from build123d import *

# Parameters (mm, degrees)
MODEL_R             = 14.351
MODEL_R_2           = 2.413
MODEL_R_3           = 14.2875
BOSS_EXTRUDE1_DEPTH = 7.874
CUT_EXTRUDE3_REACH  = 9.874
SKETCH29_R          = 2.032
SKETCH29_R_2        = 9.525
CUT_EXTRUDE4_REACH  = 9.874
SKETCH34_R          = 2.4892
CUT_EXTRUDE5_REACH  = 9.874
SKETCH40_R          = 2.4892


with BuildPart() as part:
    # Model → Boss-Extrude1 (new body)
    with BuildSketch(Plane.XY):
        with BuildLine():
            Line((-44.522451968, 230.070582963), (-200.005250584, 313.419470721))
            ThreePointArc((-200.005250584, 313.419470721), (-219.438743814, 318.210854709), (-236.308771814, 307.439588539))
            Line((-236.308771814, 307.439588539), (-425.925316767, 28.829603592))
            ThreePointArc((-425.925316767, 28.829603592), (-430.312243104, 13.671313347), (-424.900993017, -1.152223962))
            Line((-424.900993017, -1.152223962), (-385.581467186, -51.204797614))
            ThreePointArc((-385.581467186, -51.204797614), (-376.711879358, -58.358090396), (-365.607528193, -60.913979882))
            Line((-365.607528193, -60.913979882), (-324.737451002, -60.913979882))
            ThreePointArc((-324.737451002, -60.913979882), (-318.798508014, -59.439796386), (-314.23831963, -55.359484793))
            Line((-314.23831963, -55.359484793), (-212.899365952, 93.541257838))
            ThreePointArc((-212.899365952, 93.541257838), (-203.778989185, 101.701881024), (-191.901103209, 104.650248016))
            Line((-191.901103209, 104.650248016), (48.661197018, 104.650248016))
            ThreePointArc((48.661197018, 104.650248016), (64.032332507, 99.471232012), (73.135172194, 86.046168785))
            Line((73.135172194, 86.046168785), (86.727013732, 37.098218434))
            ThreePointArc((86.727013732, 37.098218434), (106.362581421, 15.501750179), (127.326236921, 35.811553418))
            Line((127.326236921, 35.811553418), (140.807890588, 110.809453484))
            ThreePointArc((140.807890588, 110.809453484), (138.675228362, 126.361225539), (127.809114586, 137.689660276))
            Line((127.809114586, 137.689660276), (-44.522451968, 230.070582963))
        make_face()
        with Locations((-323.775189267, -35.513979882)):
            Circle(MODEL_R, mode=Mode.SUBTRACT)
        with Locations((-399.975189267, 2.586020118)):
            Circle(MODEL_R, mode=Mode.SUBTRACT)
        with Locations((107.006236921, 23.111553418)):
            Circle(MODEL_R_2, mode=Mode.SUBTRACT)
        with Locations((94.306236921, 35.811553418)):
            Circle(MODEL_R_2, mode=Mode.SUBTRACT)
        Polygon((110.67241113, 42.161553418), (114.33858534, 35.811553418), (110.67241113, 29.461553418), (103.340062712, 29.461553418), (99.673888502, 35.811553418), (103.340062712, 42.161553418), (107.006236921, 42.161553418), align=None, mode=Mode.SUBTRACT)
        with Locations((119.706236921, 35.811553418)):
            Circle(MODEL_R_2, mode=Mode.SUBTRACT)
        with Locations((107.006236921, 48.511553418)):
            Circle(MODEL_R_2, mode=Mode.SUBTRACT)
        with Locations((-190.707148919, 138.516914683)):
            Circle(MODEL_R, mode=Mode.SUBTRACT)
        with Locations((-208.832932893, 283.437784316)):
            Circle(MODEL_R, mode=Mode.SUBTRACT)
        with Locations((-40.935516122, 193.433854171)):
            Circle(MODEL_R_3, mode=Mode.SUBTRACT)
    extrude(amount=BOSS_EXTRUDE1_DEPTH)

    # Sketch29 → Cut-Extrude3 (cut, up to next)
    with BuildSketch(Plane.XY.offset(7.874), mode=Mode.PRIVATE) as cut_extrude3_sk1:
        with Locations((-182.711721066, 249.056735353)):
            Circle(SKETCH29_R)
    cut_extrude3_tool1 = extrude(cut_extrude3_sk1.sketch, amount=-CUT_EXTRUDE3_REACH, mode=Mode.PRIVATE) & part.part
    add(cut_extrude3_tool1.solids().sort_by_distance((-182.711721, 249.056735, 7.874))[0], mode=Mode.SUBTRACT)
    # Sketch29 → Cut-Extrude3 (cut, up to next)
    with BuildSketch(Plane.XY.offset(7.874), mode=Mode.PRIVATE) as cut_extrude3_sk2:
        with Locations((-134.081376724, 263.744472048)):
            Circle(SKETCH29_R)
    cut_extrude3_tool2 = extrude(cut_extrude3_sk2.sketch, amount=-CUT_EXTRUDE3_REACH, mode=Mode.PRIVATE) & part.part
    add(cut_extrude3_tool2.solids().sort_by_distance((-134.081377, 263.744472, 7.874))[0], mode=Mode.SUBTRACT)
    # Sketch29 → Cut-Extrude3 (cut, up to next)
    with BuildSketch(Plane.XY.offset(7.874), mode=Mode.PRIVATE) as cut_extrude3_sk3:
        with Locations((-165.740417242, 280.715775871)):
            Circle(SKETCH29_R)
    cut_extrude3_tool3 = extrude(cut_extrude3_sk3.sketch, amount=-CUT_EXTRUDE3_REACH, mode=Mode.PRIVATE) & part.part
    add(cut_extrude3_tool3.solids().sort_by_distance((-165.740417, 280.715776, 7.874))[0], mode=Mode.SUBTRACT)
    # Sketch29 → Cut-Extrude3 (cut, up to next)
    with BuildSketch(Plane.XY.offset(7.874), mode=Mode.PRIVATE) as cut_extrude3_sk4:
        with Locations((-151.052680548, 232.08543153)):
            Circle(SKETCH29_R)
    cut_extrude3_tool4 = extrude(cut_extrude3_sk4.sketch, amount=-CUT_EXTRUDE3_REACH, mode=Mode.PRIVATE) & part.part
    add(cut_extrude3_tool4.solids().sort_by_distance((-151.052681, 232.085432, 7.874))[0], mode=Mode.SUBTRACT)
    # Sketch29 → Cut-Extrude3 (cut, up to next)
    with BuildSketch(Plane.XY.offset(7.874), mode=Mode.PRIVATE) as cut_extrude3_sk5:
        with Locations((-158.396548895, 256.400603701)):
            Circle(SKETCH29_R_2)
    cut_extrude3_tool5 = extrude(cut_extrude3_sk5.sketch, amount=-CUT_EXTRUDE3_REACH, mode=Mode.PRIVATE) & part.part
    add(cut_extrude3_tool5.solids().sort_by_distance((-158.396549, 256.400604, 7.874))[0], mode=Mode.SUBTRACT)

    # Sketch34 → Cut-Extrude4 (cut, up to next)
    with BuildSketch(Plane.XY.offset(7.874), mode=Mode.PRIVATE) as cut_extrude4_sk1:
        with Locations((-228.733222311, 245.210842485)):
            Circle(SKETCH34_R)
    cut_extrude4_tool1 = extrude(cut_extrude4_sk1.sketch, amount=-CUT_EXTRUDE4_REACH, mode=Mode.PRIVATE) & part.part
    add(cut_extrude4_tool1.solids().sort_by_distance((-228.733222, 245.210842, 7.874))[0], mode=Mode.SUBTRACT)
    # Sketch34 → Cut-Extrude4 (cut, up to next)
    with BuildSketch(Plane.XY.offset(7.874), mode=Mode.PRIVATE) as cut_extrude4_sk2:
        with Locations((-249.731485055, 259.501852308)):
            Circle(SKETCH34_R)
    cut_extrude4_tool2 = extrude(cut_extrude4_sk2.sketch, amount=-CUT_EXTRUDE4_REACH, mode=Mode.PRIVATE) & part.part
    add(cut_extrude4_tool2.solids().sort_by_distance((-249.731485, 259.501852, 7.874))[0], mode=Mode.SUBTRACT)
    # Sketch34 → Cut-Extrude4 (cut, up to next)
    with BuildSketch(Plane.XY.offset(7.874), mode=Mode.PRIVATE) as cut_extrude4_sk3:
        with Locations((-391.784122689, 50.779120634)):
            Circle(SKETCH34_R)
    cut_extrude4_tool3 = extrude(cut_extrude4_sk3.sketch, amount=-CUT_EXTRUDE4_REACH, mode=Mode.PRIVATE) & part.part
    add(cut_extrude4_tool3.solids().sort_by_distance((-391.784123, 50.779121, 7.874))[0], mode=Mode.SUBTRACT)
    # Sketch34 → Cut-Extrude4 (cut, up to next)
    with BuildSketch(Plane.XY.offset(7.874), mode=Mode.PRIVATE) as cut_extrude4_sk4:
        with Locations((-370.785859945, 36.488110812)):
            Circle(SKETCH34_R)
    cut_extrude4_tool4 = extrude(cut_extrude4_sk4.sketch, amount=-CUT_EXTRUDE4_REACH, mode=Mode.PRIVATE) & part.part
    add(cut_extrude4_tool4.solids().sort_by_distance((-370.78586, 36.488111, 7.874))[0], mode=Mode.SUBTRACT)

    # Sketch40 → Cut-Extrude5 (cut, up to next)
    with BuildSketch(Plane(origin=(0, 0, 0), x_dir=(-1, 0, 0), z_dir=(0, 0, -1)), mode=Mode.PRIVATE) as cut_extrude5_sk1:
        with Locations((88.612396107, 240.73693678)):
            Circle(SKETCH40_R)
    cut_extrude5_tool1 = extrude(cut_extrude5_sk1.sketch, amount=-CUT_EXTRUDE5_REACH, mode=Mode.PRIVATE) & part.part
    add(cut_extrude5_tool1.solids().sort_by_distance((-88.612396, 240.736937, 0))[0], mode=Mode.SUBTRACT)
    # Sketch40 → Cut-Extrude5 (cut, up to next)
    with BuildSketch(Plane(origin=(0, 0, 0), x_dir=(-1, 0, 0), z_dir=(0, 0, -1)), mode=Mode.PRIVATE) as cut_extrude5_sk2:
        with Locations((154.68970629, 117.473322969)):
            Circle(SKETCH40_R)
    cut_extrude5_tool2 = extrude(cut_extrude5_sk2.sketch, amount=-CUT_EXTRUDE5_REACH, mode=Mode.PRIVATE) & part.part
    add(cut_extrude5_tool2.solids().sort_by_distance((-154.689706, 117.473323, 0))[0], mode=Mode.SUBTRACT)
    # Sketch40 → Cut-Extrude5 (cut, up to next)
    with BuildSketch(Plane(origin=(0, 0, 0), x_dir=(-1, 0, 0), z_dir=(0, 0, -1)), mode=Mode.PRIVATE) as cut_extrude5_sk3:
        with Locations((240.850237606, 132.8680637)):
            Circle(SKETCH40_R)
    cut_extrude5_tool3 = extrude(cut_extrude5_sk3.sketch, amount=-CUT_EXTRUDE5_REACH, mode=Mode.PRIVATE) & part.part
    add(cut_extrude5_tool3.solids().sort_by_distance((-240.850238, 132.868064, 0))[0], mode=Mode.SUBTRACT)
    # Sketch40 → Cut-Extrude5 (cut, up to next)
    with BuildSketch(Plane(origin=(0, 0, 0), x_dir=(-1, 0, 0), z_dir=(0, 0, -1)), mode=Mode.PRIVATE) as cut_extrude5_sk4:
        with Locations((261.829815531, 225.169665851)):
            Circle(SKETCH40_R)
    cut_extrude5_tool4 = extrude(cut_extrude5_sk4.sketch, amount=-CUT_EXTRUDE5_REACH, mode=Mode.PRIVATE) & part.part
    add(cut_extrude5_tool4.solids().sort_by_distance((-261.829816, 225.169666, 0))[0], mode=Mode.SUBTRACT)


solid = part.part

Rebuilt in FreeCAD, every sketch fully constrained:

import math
import FreeCAD as App
import Part
import Sketcher
Q = App.Units.Quantity


def add_polygon(sketch, points):
    """Adds a closed chain of lines whose ends are joined by coincident constraints."""
    first, n = sketch.GeometryCount, len(points)
    for a, b in zip(points, points[1:] + points[:1]):
        sketch.addGeometry(Part.LineSegment(App.Vector(*a, 0), App.Vector(*b, 0)), False)
    for i in range(n):
        sketch.addConstraint(Sketcher.Constraint("Coincident", first + i, 2, first + (i + 1) % n, 1))

doc = App.newDocument("Part")
body = doc.addObject("PartDesign::Body", "Body")

# Sketch on XY plane
sketch1 = body.newObject("Sketcher::SketchObject", "Sketch")
sketch1.AttachmentSupport = (doc.getObject("XY_Plane"), [""])
sketch1.MapMode = "FlatFace"
sketch1.addGeometry(Part.LineSegment(App.Vector(-44.5, 230.1, 0), App.Vector(-200, 313.4, 0)), False)  # 0
sketch1.addGeometry(Part.ArcOfCircle(Part.Circle(App.Vector(-215.3, 293.1, 0), App.Vector(0, 0, 1), 25.4), math.radians(53), math.radians(146)), False)  # 1
sketch1.addGeometry(Part.LineSegment(App.Vector(-236.3, 307.4, 0), App.Vector(-425.9, 28.8, 0)), False)  # 2
sketch1.addGeometry(Part.ArcOfCircle(Part.Circle(App.Vector(-404.9, 14.5, 0), App.Vector(0, 0, 1), 25.4), math.radians(146), math.radians(218)), False)  # 3
sketch1.addGeometry(Part.LineSegment(App.Vector(-424.9, -1.2, 0), App.Vector(-385.6, -51.2, 0)), False)  # 4
sketch1.addGeometry(Part.ArcOfCircle(Part.Circle(App.Vector(-365.6, -35.5, 0), App.Vector(0, 0, 1), 25.4), math.radians(-142), math.radians(-90)), False)  # 5
sketch1.addGeometry(Part.LineSegment(App.Vector(-365.6, -60.9, 0), App.Vector(-324.7, -60.9, 0)), False)  # 6
sketch1.addGeometry(Part.ArcOfCircle(Part.Circle(App.Vector(-324.7, -48.2, 0), App.Vector(0, 0, 1), 12.7), math.radians(-90), math.radians(-34)), False)  # 7
sketch1.addGeometry(Part.LineSegment(App.Vector(-314.2, -55.4, 0), App.Vector(-212.9, 93.5, 0)), False)  # 8
sketch1.addGeometry(Part.ArcOfCircle(Part.Circle(App.Vector(-191.9, 79.3, 0), App.Vector(0, 0, 1), 25.4), math.radians(90), math.radians(146)), False)  # 9
sketch1.addGeometry(Part.LineSegment(App.Vector(-191.9, 104.7, 0), App.Vector(48.7, 104.7, 0)), False)  # 10
sketch1.addGeometry(Part.ArcOfCircle(Part.Circle(App.Vector(48.7, 79.3, 0), App.Vector(0, 0, 1), 25.4), math.radians(16), math.radians(90)), False)  # 11
sketch1.addGeometry(Part.LineSegment(App.Vector(73.1, 86, 0), App.Vector(86.7, 37.1, 0)), False)  # 12
sketch1.addGeometry(Part.ArcOfCircle(Part.Circle(App.Vector(107, 35.8, 0), App.Vector(0, 0, 1), 20.3), math.radians(176), math.radians(360)), False)  # 13
sketch1.addGeometry(Part.LineSegment(App.Vector(127.3, 35.8, 0), App.Vector(140.8, 110.8, 0)), False)  # 14
sketch1.addGeometry(Part.ArcOfCircle(Part.Circle(App.Vector(115.8, 115.3, 0), App.Vector(0, 0, 1), 25.4), math.radians(-10), math.radians(62)), False)  # 15
sketch1.addGeometry(Part.LineSegment(App.Vector(127.8, 137.7, 0), App.Vector(-44.5, 230.1, 0)), False)  # 16
sketch1.addGeometry(Part.Circle(App.Vector(-323.8, -35.5, 0), App.Vector(0, 0, 1), 14.4), False)  # 17
sketch1.addGeometry(Part.Circle(App.Vector(-400, 2.6, 0), App.Vector(0, 0, 1), 14.4), False)  # 18
sketch1.addGeometry(Part.Circle(App.Vector(107, 23.1, 0), App.Vector(0, 0, 1), 2.4), False)  # 19
sketch1.addGeometry(Part.Circle(App.Vector(94.3, 35.8, 0), App.Vector(0, 0, 1), 2.4), False)  # 20
add_polygon(sketch1, [(103.3, 42.2), (110.7, 42.2), (114.3, 35.8), (110.7, 29.5), (103.3, 29.5), (99.7, 35.8)])  # lines 21-26
sketch1.addGeometry(Part.Circle(App.Vector(119.7, 35.8, 0), App.Vector(0, 0, 1), 2.4), False)  # 27
sketch1.addGeometry(Part.Circle(App.Vector(107, 48.5, 0), App.Vector(0, 0, 1), 2.4), False)  # 28
sketch1.addGeometry(Part.Circle(App.Vector(-190.7, 138.5, 0), App.Vector(0, 0, 1), 14.4), False)  # 29
sketch1.addGeometry(Part.Circle(App.Vector(-208.8, 283.4, 0), App.Vector(0, 0, 1), 14.4), False)  # 30
sketch1.addGeometry(Part.Circle(App.Vector(-40.9, 193.4, 0), App.Vector(0, 0, 1), 14.3), False)  # 31
sketch1.addConstraint([
    Sketcher.Constraint("Coincident", 0, 2, 1, 1),
    Sketcher.Constraint("Tangent", 1, 2, 2, 1),
    Sketcher.Constraint("Tangent", 2, 2, 3, 1),
    Sketcher.Constraint("Tangent", 3, 2, 4, 1),
    Sketcher.Constraint("Tangent", 4, 2, 5, 1),
    Sketcher.Constraint("Tangent", 5, 2, 6, 1),
    Sketcher.Constraint("Tangent", 6, 2, 7, 1),
    Sketcher.Constraint("Tangent", 7, 2, 8, 1),
    Sketcher.Constraint("Tangent", 8, 2, 9, 2),
    Sketcher.Constraint("Tangent", 9, 1, 10, 1),
    Sketcher.Constraint("Tangent", 10, 2, 11, 2),
    Sketcher.Constraint("Tangent", 11, 1, 12, 1),
    Sketcher.Constraint("Coincident", 12, 2, 13, 1),
    Sketcher.Constraint("Coincident", 13, 2, 14, 1),
    Sketcher.Constraint("Tangent", 14, 2, 15, 1),
    Sketcher.Constraint("Tangent", 15, 2, 16, 1),
    Sketcher.Constraint("Coincident", 16, 2, 0, 1),
    Sketcher.Constraint("Horizontal", 6),
    Sketcher.Constraint("Horizontal", 10),
    Sketcher.Constraint("Horizontal", 21),
    Sketcher.Constraint("Horizontal", 24),
    Sketcher.Constraint("Equal", 1, 3),
    Sketcher.Constraint("Equal", 3, 5),
    Sketcher.Constraint("Equal", 5, 9),
    Sketcher.Constraint("Equal", 9, 11),
    Sketcher.Constraint("Equal", 11, 15),
    Sketcher.Constraint("Equal", 17, 18),
    Sketcher.Constraint("Equal", 19, 20),
    Sketcher.Constraint("Equal", 20, 27),
    Sketcher.Constraint("Equal", 27, 28),
    Sketcher.Constraint("Equal", 18, 29),
    Sketcher.Constraint("Equal", 29, 30),
    Sketcher.Constraint("Parallel", 2, 8),
    Sketcher.Constraint("Parallel", 0, 16),
    Sketcher.Constraint("Parallel", 22, 25),
    Sketcher.Constraint("Parallel", 23, 26),
    Sketcher.Constraint("Horizontal", 5, 3, 17, 3),
    Sketcher.Constraint("Horizontal", 13, 3, 20, 3),
    Sketcher.Constraint("Horizontal", 20, 3, 27, 3),
    Sketcher.Constraint("Horizontal", 27, 3, 13, 2),
    Sketcher.Constraint("Horizontal", 13, 2, 22, 2),
    Sketcher.Constraint("Horizontal", 22, 2, 25, 2),
    Sketcher.Constraint("Vertical", 13, 3, 19, 3),
    Sketcher.Constraint("Vertical", 19, 3, 28, 3),
    Sketcher.Constraint("Vertical", 21, 2, 23, 2),
    Sketcher.Constraint("Vertical", 24, 2, 26, 2),
    Sketcher.Constraint("Radius", 1, Q("1 in")),
    Sketcher.Constraint("Radius", 7, Q("0.5 in")),
    Sketcher.Constraint("Radius", 13, Q("0.8 in")),
    Sketcher.Constraint("Diameter", 17, Q("1.13 in")),
    Sketcher.Constraint("Diameter", 19, Q("0.19 in")),
    Sketcher.Constraint("Distance", 12, Q("2 in")),
    Sketcher.Constraint("Distance", 14, Q("3 in")),
    Sketcher.Constraint("Diameter", 31, Q("1.125 in")),
    Sketcher.Constraint("Angle", 22, Q("-60 deg")),
    Sketcher.Constraint("DistanceX", 18, 3, 17, 3, Q("3 in")),
    Sketcher.Constraint("DistanceY", 7, 3, 18, 3, Q("2 in")),
    Sketcher.Constraint("DistanceX", 20, 3, 27, 3, Q("1 in")),
    Sketcher.Constraint("DistanceY", 19, 3, 28, 3, Q("1 in")),
    Sketcher.Constraint("DistanceY", 19, 3, 13, 3, Q("0.5 in")),
    Sketcher.Constraint("DistanceX", 20, 3, 13, 3, Q("0.5 in")),
    Sketcher.Constraint("DistanceY", 23, 2, 21, 2, Q("0.5 in")),
    Sketcher.Constraint("DistanceX", 10, 1, 10, 2, Q("240.5623 mm")),
    Sketcher.Constraint("DistanceX", 21, 1, 21, 2, Q("7.332348 mm")),
    Sketcher.Constraint("DistanceX", 1, 3, 15, 3, Q("331.1191 mm")),
    Sketcher.Constraint("DistanceX", 0, 2, 29, 3, Q("9.298102 mm")),
    Sketcher.Constraint("DistanceX", 15, 3, 14, 2, Q("24.9993 mm")),
    Sketcher.Constraint("DistanceY", 16, 2, 30, 3, Q("53.367201 mm")),
    Sketcher.Constraint("DistanceX", 0, 2, 16, 2, Q("155.482799 mm")),
    Sketcher.Constraint("Distance", 0, Q("176.414109 mm")),
    Sketcher.Constraint("Distance", 2, Q("337.01329 mm")),
    Sketcher.Constraint("Distance", 16, Q("195.531081 mm")),
    Sketcher.Constraint("DistanceX", 6, 1, 6, 2, Q("40.870077 mm")),
    Sketcher.Constraint("DistanceX", 1, 3, -1, 1, Q("215.310509 mm")),
    Sketcher.Constraint("DistanceY", -1, 1, 1, 3, Q("293.148579 mm")),
    Sketcher.Constraint("DistanceX", 5, 3, -1, 1, Q("365.607528 mm")),
    Sketcher.Constraint("DistanceY", 5, 3, -1, 1, Q("35.51398 mm")),
    Sketcher.Constraint("DistanceY", -1, 1, 9, 3, Q("79.250248 mm")),
    Sketcher.Constraint("DistanceX", 17, 3, -1, 1, Q("323.775189 mm")),
    Sketcher.Constraint("DistanceY", -1, 1, 11, 1, Q("86.046169 mm")),
    Sketcher.Constraint("DistanceX", -1, 1, 21, 2, Q("110.672411 mm")),
    Sketcher.Constraint("DistanceY", 29, 3, 30, 3, Q("144.92087 mm")),
    Sketcher.Constraint("DistanceX", 30, 3, 9, 3, Q("16.93183 mm")),
    Sketcher.Constraint("DistanceY", 29, 3, 31, 3, Q("54.916939 mm")),
    Sketcher.Constraint("DistanceX", 31, 3, -1, 1, Q("40.935516 mm")),
])
pad1 = body.newObject("PartDesign::Pad", "Pad")
pad1.Profile = sketch1
pad1.Length = Q("0.31 in")

# Sketch on XY plane
sketch2 = body.newObject("Sketcher::SketchObject", "Sketch001")
sketch2.AttachmentSupport = (doc.getObject("XY_Plane"), [""])
sketch2.MapMode = "FlatFace"
sketch2.AttachmentOffset = App.Placement(App.Vector(0, 0, 0.31 * 25.4), App.Rotation())
sketch2.addGeometry(Part.Circle(App.Vector(-182.7, 249.1, 0), App.Vector(0, 0, 1), 2), False)
sketch2.addConstraint([
    Sketcher.Constraint("Diameter", 0, Q("0.16 in")),
    Sketcher.Constraint("DistanceX", 0, 3, -1, 1, Q("182.711721 mm")),
    Sketcher.Constraint("DistanceY", -1, 1, 0, 3, Q("249.056735 mm")),
])
pocket1 = body.newObject("PartDesign::Pocket", "Pocket")
pocket1.Profile = sketch2
pocket1.Type = "UpToFirst"

# Sketch on XY plane
sketch3 = body.newObject("Sketcher::SketchObject", "Sketch002")
sketch3.AttachmentSupport = (doc.getObject("XY_Plane"), [""])
sketch3.MapMode = "FlatFace"
sketch3.AttachmentOffset = App.Placement(App.Vector(0, 0, 0.31 * 25.4), App.Rotation())
sketch3.addGeometry(Part.Circle(App.Vector(-134.1, 263.7, 0), App.Vector(0, 0, 1), 2), False)
sketch3.addConstraint([
    Sketcher.Constraint("Diameter", 0, Q("0.16 in")),
    Sketcher.Constraint("DistanceX", 0, 3, -1, 1, Q("134.081377 mm")),
    Sketcher.Constraint("DistanceY", -1, 1, 0, 3, Q("263.744472 mm")),
])
pocket2 = body.newObject("PartDesign::Pocket", "Pocket001")
pocket2.Profile = sketch3
pocket2.Type = "UpToFirst"

# Sketch on XY plane
sketch4 = body.newObject("Sketcher::SketchObject", "Sketch003")
sketch4.AttachmentSupport = (doc.getObject("XY_Plane"), [""])
sketch4.MapMode = "FlatFace"
sketch4.AttachmentOffset = App.Placement(App.Vector(0, 0, 0.31 * 25.4), App.Rotation())
sketch4.addGeometry(Part.Circle(App.Vector(-165.7, 280.7, 0), App.Vector(0, 0, 1), 2), False)
sketch4.addConstraint([
    Sketcher.Constraint("Diameter", 0, Q("0.16 in")),
    Sketcher.Constraint("DistanceX", 0, 3, -1, 1, Q("165.740417 mm")),
    Sketcher.Constraint("DistanceY", -1, 1, 0, 3, Q("280.715776 mm")),
])
pocket3 = body.newObject("PartDesign::Pocket", "Pocket002")
pocket3.Profile = sketch4
pocket3.Type = "UpToFirst"

# Sketch on XY plane
sketch5 = body.newObject("Sketcher::SketchObject", "Sketch004")
sketch5.AttachmentSupport = (doc.getObject("XY_Plane"), [""])
sketch5.MapMode = "FlatFace"
sketch5.AttachmentOffset = App.Placement(App.Vector(0, 0, 0.31 * 25.4), App.Rotation())
sketch5.addGeometry(Part.Circle(App.Vector(-151.1, 232.1, 0), App.Vector(0, 0, 1), 2), False)
sketch5.addConstraint([
    Sketcher.Constraint("Diameter", 0, Q("0.16 in")),
    Sketcher.Constraint("DistanceX", 0, 3, -1, 1, Q("151.052681 mm")),
    Sketcher.Constraint("DistanceY", -1, 1, 0, 3, Q("232.085432 mm")),
])
pocket4 = body.newObject("PartDesign::Pocket", "Pocket003")
pocket4.Profile = sketch5
pocket4.Type = "UpToFirst"

# Sketch on XY plane
sketch6 = body.newObject("Sketcher::SketchObject", "Sketch005")
sketch6.AttachmentSupport = (doc.getObject("XY_Plane"), [""])
sketch6.MapMode = "FlatFace"
sketch6.AttachmentOffset = App.Placement(App.Vector(0, 0, 0.31 * 25.4), App.Rotation())
sketch6.addGeometry(Part.Circle(App.Vector(-158, 256, 0), App.Vector(0, 0, 1), 10), False)
sketch6.addConstraint([
    Sketcher.Constraint("Diameter", 0, Q("0.75 in")),
    Sketcher.Constraint("DistanceX", 0, 3, -1, 1, Q("158.396549 mm")),
    Sketcher.Constraint("DistanceY", -1, 1, 0, 3, Q("256.400604 mm")),
])
pocket5 = body.newObject("PartDesign::Pocket", "Pocket004")
pocket5.Profile = sketch6
pocket5.Type = "UpToFirst"

# Sketch on XY plane
sketch7 = body.newObject("Sketcher::SketchObject", "Sketch006")
sketch7.AttachmentSupport = (doc.getObject("XY_Plane"), [""])
sketch7.MapMode = "FlatFace"
sketch7.AttachmentOffset = App.Placement(App.Vector(0, 0, 0.31 * 25.4), App.Rotation())
sketch7.addGeometry(Part.Circle(App.Vector(-228.7, 245.2, 0), App.Vector(0, 0, 1), 2.5), False)
sketch7.addConstraint([
    Sketcher.Constraint("Diameter", 0, Q("0.196 in")),
    Sketcher.Constraint("DistanceX", 0, 3, -1, 1, Q("228.733222 mm")),
    Sketcher.Constraint("DistanceY", -1, 1, 0, 3, Q("245.210842 mm")),
])
pocket6 = body.newObject("PartDesign::Pocket", "Pocket005")
pocket6.Profile = sketch7
pocket6.Type = "UpToFirst"

# Sketch on XY plane
sketch8 = body.newObject("Sketcher::SketchObject", "Sketch007")
sketch8.AttachmentSupport = (doc.getObject("XY_Plane"), [""])
sketch8.MapMode = "FlatFace"
sketch8.AttachmentOffset = App.Placement(App.Vector(0, 0, 0.31 * 25.4), App.Rotation())
sketch8.addGeometry(Part.Circle(App.Vector(-249.7, 259.5, 0), App.Vector(0, 0, 1), 2.5), False)
sketch8.addConstraint([
    Sketcher.Constraint("Diameter", 0, Q("0.196 in")),
    Sketcher.Constraint("DistanceX", 0, 3, -1, 1, Q("249.731485 mm")),
    Sketcher.Constraint("DistanceY", -1, 1, 0, 3, Q("259.501852 mm")),
])
pocket7 = body.newObject("PartDesign::Pocket", "Pocket006")
pocket7.Profile = sketch8
pocket7.Type = "UpToFirst"

# Sketch on XY plane
sketch9 = body.newObject("Sketcher::SketchObject", "Sketch008")
sketch9.AttachmentSupport = (doc.getObject("XY_Plane"), [""])
sketch9.MapMode = "FlatFace"
sketch9.AttachmentOffset = App.Placement(App.Vector(0, 0, 0.31 * 25.4), App.Rotation())
sketch9.addGeometry(Part.Circle(App.Vector(-391.8, 50.8, 0), App.Vector(0, 0, 1), 2.5), False)
sketch9.addConstraint([
    Sketcher.Constraint("Diameter", 0, Q("0.196 in")),
    Sketcher.Constraint("DistanceY", -1, 1, 0, 3, Q("50.779121 mm")),
    Sketcher.Constraint("DistanceX", 0, 3, -1, 1, Q("391.784123 mm")),
])
pocket8 = body.newObject("PartDesign::Pocket", "Pocket007")
pocket8.Profile = sketch9
pocket8.Type = "UpToFirst"

# Sketch on XY plane
sketch10 = body.newObject("Sketcher::SketchObject", "Sketch009")
sketch10.AttachmentSupport = (doc.getObject("XY_Plane"), [""])
sketch10.MapMode = "FlatFace"
sketch10.AttachmentOffset = App.Placement(App.Vector(0, 0, 0.31 * 25.4), App.Rotation())
sketch10.addGeometry(Part.Circle(App.Vector(-370.8, 36.5, 0), App.Vector(0, 0, 1), 2.5), False)
sketch10.addConstraint([
    Sketcher.Constraint("Diameter", 0, Q("0.196 in")),
    Sketcher.Constraint("DistanceX", 0, 3, -1, 1, Q("370.78586 mm")),
    Sketcher.Constraint("DistanceY", -1, 1, 0, 3, Q("36.488111 mm")),
])
pocket9 = body.newObject("PartDesign::Pocket", "Pocket008")
pocket9.Profile = sketch10
pocket9.Type = "UpToFirst"

# Sketch on XY plane
sketch11 = body.newObject("Sketcher::SketchObject", "Sketch010")
sketch11.AttachmentSupport = (doc.getObject("XY_Plane"), [""])
sketch11.MapMode = "FlatFace"
sketch11.addGeometry(Part.Circle(App.Vector(-88.6, 240.7, 0), App.Vector(0, 0, 1), 2.5), False)
sketch11.addConstraint([
    Sketcher.Constraint("Diameter", 0, Q("0.196 in")),
    Sketcher.Constraint("DistanceX", 0, 3, -1, 1, Q("88.612396 mm")),
    Sketcher.Constraint("DistanceY", -1, 1, 0, 3, Q("240.736937 mm")),
])
pocket10 = body.newObject("PartDesign::Pocket", "Pocket009")
pocket10.Profile = sketch11
pocket10.Type = "UpToFirst"
pocket10.Reversed = True

# Sketch on XY plane
sketch12 = body.newObject("Sketcher::SketchObject", "Sketch011")
sketch12.AttachmentSupport = (doc.getObject("XY_Plane"), [""])
sketch12.MapMode = "FlatFace"
sketch12.addGeometry(Part.Circle(App.Vector(-154.7, 117.5, 0), App.Vector(0, 0, 1), 2.5), False)
sketch12.addConstraint([
    Sketcher.Constraint("Diameter", 0, Q("0.196 in")),
    Sketcher.Constraint("DistanceX", 0, 3, -1, 1, Q("154.689706 mm")),
    Sketcher.Constraint("DistanceY", -1, 1, 0, 3, Q("117.473323 mm")),
])
pocket11 = body.newObject("PartDesign::Pocket", "Pocket010")
pocket11.Profile = sketch12
pocket11.Type = "UpToFirst"
pocket11.Reversed = True

# Sketch on XY plane
sketch13 = body.newObject("Sketcher::SketchObject", "Sketch012")
sketch13.AttachmentSupport = (doc.getObject("XY_Plane"), [""])
sketch13.MapMode = "FlatFace"
sketch13.addGeometry(Part.Circle(App.Vector(-240.9, 132.9, 0), App.Vector(0, 0, 1), 2.5), False)
sketch13.addConstraint([
    Sketcher.Constraint("Diameter", 0, Q("0.196 in")),
    Sketcher.Constraint("DistanceX", 0, 3, -1, 1, Q("240.850238 mm")),
    Sketcher.Constraint("DistanceY", -1, 1, 0, 3, Q("132.868064 mm")),
])
pocket12 = body.newObject("PartDesign::Pocket", "Pocket011")
pocket12.Profile = sketch13
pocket12.Type = "UpToFirst"
pocket12.Reversed = True

# Sketch on XY plane
sketch14 = body.newObject("Sketcher::SketchObject", "Sketch013")
sketch14.AttachmentSupport = (doc.getObject("XY_Plane"), [""])
sketch14.MapMode = "FlatFace"
sketch14.addGeometry(Part.Circle(App.Vector(-261.8, 225.2, 0), App.Vector(0, 0, 1), 2.5), False)
sketch14.addConstraint([
    Sketcher.Constraint("Diameter", 0, Q("0.196 in")),
    Sketcher.Constraint("DistanceX", 0, 3, -1, 1, Q("261.829816 mm")),
    Sketcher.Constraint("DistanceY", -1, 1, 0, 3, Q("225.169666 mm")),
])
pocket13 = body.newObject("PartDesign::Pocket", "Pocket012")
pocket13.Profile = sketch14
pocket13.Type = "UpToFirst"
pocket13.Reversed = True

doc.recompute()
